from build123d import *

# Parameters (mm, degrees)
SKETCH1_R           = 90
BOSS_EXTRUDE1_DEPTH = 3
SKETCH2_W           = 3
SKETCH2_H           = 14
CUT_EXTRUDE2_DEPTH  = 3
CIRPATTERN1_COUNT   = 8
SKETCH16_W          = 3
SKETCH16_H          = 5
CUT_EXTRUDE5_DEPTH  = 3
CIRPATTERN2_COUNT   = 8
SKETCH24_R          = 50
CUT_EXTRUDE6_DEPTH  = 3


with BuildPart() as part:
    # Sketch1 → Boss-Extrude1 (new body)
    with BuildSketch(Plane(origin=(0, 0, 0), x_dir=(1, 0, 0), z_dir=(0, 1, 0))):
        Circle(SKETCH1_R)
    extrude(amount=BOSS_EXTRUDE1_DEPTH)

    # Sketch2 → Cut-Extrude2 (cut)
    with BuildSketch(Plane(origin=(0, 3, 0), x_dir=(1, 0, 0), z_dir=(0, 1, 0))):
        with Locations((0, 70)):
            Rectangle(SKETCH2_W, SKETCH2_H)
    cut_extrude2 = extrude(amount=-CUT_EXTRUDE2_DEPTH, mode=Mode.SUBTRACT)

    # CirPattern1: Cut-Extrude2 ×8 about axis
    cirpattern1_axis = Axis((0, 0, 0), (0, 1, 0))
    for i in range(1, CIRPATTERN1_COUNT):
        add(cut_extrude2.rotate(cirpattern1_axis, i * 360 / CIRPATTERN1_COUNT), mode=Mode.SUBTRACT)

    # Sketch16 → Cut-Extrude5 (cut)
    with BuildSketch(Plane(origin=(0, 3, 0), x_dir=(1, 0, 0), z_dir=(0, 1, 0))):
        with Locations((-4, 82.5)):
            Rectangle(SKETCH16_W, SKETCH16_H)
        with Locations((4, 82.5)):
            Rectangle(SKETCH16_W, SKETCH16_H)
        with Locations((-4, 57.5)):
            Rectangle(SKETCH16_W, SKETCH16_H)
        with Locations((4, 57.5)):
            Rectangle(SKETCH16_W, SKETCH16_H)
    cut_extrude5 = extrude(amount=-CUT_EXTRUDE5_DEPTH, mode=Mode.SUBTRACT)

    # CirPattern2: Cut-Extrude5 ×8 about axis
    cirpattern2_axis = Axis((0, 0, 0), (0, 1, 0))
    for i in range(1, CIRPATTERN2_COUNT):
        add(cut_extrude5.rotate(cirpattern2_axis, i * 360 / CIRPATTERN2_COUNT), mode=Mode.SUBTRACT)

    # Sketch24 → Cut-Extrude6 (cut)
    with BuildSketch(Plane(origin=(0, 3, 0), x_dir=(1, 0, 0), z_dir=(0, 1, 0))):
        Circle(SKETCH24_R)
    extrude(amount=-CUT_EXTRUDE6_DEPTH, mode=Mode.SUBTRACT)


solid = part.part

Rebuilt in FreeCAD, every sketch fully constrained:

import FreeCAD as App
import Part
import Sketcher
Q = App.Units.Quantity


def add_polygon(sketch, points):
    """Adds a closed chain of lines whose ends are joined by coincident constraints."""
    first, n = sketch.GeometryCount, len(points)
    for a, b in zip(points, points[1:] + points[:1]):
        sketch.addGeometry(Part.LineSegment(App.Vector(*a, 0), App.Vector(*b, 0)), False)
    for i in range(n):
        sketch.addConstraint(Sketcher.Constraint("Coincident", first + i, 2, first + (i + 1) % n, 1))

doc = App.newDocument("Part")
body = doc.addObject("PartDesign::Body", "Body")

# Sketch on XZ plane
sketch1 = doc.addObject("Sketcher::SketchObject", "Sketch")
body.addObject(sketch1)
sketch1.AttachmentSupport = (doc.XZ_Plane, [""])
sketch1.MapMode = "FlatFace"
sketch1.addGeometry(Part.Circle(App.Vector(0, 0, 0), App.Vector(0, 0, 1), 90), False)
sketch1.addConstraint([
    Sketcher.Constraint("Coincident", 0, 3, -1, 1),
    Sketcher.Constraint("Diameter", 0, Q("180 mm")),
])
pad1 = doc.addObject("PartDesign::Pad", "Pad")
body.addObject(pad1)
pad1.Profile = sketch1
pad1.Length = 3
pad1.Reversed = True

# Sketch on XZ plane
sketch2 = doc.addObject("Sketcher::SketchObject", "Sketch001")
body.addObject(sketch2)
sketch2.AttachmentSupport = (doc.XZ_Plane, [""])
sketch2.MapMode = "FlatFace"
sketch2.AttachmentOffset = App.Placement(App.Vector(0, 0, -3), App.Rotation())
add_polygon(sketch2, [(-1.5, -77), (-1.5, -63), (1.5, -63), (1.5, -77)])  # lines 0-3
sketch2.addConstraint([
    Sketcher.Constraint("Vertical", 0),
    Sketcher.Constraint("Horizontal", 1),
    Sketcher.Constraint("Vertical", 2),
    Sketcher.Constraint("Horizontal", 3),
    Sketcher.Constraint("DistanceX", 1, 1, 1, 2, Q("3 mm")),
    Sketcher.Constraint("DistanceY", 0, 1, 0, 2, Q("14 mm")),
    Sketcher.Constraint("DistanceY", 0, 2, -1, 1, Q("63 mm")),
    Sketcher.Constraint("DistanceX", 0, 2, -1, 1, Q("1.5 mm")),
])
pocket1 = doc.addObject("PartDesign::Pocket", "Pocket")
body.addObject(pocket1)
pocket1.Profile = sketch2
pocket1.Length = 3
pocket1.Reversed = True
doc.recompute()

polarpattern = doc.addObject("PartDesign::PolarPattern", "PolarPattern")
body.addObject(polarpattern)
polarpattern.Originals = [pocket1]
polarpattern.Axis = (doc.Y_Axis, [""])
polarpattern.Angle = 360
polarpattern.Occurrences = 8
body.Tip = polarpattern

# Sketch on XZ plane
sketch3 = doc.addObject("Sketcher::SketchObject", "Sketch002")
body.addObject(sketch3)
sketch3.AttachmentSupport = (doc.XZ_Plane, [""])
sketch3.MapMode = "FlatFace"
sketch3.AttachmentOffset = App.Placement(App.Vector(0, 0, -3), App.Rotation())
add_polygon(sketch3, [(-5.5, -85), (-5.5, -80), (-2.5, -80), (-2.5, -85)])  # lines 0-3
add_polygon(sketch3, [(2.5, -85), (2.5, -80), (5.5, -80), (5.5, -85)])  # lines 4-7
add_polygon(sketch3, [(-5.5, -60), (-5.5, -55), (-2.5, -55), (-2.5, -60)])  # lines 8-11
add_polygon(sketch3, [(2.5, -60), (2.5, -55), (5.5, -55), (5.5, -60)])  # lines 12-15
sketch3.addConstraint([
    Sketcher.Constraint("Vertical", 0),
    Sketcher.Constraint("Horizontal", 1),
    Sketcher.Constraint("Vertical", 2),
    Sketcher.Constraint("Horizontal", 3),
    Sketcher.Constraint("Vertical", 4),
    Sketcher.Constraint("Horizontal", 5),
    Sketcher.Constraint("Vertical", 6),
    Sketcher.Constraint("Horizontal", 7),
    Sketcher.Constraint("Vertical", 8),
    Sketcher.Constraint("Horizontal", 9),
    Sketcher.Constraint("Vertical", 10),
    Sketcher.Constraint("Horizontal", 11),
    Sketcher.Constraint("Vertical", 12),
    Sketcher.Constraint("Horizontal", 13),
    Sketcher.Constraint("Vertical", 14),
    Sketcher.Constraint("Horizontal", 15),
    Sketcher.Constraint("Symmetric", 1, 2, 4, 2, -2),
    Sketcher.Constraint("Symmetric", 3, 2, 6, 2, -2),
    Sketcher.Constraint("Symmetric", 9, 2, 12, 2, -2),
    Sketcher.Constraint("Symmetric", 11, 2, 14, 2, -2),
    Sketcher.Constraint("Vertical", 3, 2, 8, 2),
    Sketcher.Constraint("Vertical", 2, 2, 9, 2),
    Sketcher.Constraint("Equal", 6, 8),
    Sketcher.Constraint("DistanceX", 1, 1, 1, 2, Q("3 mm")),
    Sketcher.Constraint("DistanceY", 0, 1, 0, 2, Q("5 mm")),
    Sketcher.Constraint("DistanceY", 0, 2, -1, 1, Q("80 mm")),
    Sketcher.Constraint("DistanceY", 8, 2, -1, 1, Q("55 mm")),
    Sketcher.Constraint("DistanceX", 1, 2, 4, 2, Q("5 mm")),
])
pocket2 = doc.addObject("PartDesign::Pocket", "Pocket001")
body.addObject(pocket2)
pocket2.Profile = sketch3
pocket2.Length = 3
pocket2.Reversed = True
doc.recompute()

polarpattern2 = doc.addObject("PartDesign::PolarPattern", "PolarPattern001")
body.addObject(polarpattern2)
polarpattern2.Originals = [pocket2]
polarpattern2.Axis = (doc.Y_Axis, [""])
polarpattern2.Angle = 360
polarpattern2.Occurrences = 8
body.Tip = polarpattern2

# Sketch on XZ plane
sketch4 = doc.addObject("Sketcher::SketchObject", "Sketch003")
body.addObject(sketch4)
sketch4.AttachmentSupport = (doc.XZ_Plane, [""])
sketch4.MapMode = "FlatFace"
sketch4.AttachmentOffset = App.Placement(App.Vector(0, 0, -3), App.Rotation())
sketch4.addGeometry(Part.Circle(App.Vector(0, 0, 0), App.Vector(0, 0, 1), 50), False)
sketch4.addConstraint([
    Sketcher.Constraint("Coincident", 0, 3, -1, 1),
    Sketcher.Constraint("Diameter", 0, Q("100 mm")),
])
pocket3 = doc.addObject("PartDesign::Pocket", "Pocket002")
body.addObject(pocket3)
pocket3.Profile = sketch4
pocket3.Length = 3
pocket3.Reversed = True

doc.recompute()
